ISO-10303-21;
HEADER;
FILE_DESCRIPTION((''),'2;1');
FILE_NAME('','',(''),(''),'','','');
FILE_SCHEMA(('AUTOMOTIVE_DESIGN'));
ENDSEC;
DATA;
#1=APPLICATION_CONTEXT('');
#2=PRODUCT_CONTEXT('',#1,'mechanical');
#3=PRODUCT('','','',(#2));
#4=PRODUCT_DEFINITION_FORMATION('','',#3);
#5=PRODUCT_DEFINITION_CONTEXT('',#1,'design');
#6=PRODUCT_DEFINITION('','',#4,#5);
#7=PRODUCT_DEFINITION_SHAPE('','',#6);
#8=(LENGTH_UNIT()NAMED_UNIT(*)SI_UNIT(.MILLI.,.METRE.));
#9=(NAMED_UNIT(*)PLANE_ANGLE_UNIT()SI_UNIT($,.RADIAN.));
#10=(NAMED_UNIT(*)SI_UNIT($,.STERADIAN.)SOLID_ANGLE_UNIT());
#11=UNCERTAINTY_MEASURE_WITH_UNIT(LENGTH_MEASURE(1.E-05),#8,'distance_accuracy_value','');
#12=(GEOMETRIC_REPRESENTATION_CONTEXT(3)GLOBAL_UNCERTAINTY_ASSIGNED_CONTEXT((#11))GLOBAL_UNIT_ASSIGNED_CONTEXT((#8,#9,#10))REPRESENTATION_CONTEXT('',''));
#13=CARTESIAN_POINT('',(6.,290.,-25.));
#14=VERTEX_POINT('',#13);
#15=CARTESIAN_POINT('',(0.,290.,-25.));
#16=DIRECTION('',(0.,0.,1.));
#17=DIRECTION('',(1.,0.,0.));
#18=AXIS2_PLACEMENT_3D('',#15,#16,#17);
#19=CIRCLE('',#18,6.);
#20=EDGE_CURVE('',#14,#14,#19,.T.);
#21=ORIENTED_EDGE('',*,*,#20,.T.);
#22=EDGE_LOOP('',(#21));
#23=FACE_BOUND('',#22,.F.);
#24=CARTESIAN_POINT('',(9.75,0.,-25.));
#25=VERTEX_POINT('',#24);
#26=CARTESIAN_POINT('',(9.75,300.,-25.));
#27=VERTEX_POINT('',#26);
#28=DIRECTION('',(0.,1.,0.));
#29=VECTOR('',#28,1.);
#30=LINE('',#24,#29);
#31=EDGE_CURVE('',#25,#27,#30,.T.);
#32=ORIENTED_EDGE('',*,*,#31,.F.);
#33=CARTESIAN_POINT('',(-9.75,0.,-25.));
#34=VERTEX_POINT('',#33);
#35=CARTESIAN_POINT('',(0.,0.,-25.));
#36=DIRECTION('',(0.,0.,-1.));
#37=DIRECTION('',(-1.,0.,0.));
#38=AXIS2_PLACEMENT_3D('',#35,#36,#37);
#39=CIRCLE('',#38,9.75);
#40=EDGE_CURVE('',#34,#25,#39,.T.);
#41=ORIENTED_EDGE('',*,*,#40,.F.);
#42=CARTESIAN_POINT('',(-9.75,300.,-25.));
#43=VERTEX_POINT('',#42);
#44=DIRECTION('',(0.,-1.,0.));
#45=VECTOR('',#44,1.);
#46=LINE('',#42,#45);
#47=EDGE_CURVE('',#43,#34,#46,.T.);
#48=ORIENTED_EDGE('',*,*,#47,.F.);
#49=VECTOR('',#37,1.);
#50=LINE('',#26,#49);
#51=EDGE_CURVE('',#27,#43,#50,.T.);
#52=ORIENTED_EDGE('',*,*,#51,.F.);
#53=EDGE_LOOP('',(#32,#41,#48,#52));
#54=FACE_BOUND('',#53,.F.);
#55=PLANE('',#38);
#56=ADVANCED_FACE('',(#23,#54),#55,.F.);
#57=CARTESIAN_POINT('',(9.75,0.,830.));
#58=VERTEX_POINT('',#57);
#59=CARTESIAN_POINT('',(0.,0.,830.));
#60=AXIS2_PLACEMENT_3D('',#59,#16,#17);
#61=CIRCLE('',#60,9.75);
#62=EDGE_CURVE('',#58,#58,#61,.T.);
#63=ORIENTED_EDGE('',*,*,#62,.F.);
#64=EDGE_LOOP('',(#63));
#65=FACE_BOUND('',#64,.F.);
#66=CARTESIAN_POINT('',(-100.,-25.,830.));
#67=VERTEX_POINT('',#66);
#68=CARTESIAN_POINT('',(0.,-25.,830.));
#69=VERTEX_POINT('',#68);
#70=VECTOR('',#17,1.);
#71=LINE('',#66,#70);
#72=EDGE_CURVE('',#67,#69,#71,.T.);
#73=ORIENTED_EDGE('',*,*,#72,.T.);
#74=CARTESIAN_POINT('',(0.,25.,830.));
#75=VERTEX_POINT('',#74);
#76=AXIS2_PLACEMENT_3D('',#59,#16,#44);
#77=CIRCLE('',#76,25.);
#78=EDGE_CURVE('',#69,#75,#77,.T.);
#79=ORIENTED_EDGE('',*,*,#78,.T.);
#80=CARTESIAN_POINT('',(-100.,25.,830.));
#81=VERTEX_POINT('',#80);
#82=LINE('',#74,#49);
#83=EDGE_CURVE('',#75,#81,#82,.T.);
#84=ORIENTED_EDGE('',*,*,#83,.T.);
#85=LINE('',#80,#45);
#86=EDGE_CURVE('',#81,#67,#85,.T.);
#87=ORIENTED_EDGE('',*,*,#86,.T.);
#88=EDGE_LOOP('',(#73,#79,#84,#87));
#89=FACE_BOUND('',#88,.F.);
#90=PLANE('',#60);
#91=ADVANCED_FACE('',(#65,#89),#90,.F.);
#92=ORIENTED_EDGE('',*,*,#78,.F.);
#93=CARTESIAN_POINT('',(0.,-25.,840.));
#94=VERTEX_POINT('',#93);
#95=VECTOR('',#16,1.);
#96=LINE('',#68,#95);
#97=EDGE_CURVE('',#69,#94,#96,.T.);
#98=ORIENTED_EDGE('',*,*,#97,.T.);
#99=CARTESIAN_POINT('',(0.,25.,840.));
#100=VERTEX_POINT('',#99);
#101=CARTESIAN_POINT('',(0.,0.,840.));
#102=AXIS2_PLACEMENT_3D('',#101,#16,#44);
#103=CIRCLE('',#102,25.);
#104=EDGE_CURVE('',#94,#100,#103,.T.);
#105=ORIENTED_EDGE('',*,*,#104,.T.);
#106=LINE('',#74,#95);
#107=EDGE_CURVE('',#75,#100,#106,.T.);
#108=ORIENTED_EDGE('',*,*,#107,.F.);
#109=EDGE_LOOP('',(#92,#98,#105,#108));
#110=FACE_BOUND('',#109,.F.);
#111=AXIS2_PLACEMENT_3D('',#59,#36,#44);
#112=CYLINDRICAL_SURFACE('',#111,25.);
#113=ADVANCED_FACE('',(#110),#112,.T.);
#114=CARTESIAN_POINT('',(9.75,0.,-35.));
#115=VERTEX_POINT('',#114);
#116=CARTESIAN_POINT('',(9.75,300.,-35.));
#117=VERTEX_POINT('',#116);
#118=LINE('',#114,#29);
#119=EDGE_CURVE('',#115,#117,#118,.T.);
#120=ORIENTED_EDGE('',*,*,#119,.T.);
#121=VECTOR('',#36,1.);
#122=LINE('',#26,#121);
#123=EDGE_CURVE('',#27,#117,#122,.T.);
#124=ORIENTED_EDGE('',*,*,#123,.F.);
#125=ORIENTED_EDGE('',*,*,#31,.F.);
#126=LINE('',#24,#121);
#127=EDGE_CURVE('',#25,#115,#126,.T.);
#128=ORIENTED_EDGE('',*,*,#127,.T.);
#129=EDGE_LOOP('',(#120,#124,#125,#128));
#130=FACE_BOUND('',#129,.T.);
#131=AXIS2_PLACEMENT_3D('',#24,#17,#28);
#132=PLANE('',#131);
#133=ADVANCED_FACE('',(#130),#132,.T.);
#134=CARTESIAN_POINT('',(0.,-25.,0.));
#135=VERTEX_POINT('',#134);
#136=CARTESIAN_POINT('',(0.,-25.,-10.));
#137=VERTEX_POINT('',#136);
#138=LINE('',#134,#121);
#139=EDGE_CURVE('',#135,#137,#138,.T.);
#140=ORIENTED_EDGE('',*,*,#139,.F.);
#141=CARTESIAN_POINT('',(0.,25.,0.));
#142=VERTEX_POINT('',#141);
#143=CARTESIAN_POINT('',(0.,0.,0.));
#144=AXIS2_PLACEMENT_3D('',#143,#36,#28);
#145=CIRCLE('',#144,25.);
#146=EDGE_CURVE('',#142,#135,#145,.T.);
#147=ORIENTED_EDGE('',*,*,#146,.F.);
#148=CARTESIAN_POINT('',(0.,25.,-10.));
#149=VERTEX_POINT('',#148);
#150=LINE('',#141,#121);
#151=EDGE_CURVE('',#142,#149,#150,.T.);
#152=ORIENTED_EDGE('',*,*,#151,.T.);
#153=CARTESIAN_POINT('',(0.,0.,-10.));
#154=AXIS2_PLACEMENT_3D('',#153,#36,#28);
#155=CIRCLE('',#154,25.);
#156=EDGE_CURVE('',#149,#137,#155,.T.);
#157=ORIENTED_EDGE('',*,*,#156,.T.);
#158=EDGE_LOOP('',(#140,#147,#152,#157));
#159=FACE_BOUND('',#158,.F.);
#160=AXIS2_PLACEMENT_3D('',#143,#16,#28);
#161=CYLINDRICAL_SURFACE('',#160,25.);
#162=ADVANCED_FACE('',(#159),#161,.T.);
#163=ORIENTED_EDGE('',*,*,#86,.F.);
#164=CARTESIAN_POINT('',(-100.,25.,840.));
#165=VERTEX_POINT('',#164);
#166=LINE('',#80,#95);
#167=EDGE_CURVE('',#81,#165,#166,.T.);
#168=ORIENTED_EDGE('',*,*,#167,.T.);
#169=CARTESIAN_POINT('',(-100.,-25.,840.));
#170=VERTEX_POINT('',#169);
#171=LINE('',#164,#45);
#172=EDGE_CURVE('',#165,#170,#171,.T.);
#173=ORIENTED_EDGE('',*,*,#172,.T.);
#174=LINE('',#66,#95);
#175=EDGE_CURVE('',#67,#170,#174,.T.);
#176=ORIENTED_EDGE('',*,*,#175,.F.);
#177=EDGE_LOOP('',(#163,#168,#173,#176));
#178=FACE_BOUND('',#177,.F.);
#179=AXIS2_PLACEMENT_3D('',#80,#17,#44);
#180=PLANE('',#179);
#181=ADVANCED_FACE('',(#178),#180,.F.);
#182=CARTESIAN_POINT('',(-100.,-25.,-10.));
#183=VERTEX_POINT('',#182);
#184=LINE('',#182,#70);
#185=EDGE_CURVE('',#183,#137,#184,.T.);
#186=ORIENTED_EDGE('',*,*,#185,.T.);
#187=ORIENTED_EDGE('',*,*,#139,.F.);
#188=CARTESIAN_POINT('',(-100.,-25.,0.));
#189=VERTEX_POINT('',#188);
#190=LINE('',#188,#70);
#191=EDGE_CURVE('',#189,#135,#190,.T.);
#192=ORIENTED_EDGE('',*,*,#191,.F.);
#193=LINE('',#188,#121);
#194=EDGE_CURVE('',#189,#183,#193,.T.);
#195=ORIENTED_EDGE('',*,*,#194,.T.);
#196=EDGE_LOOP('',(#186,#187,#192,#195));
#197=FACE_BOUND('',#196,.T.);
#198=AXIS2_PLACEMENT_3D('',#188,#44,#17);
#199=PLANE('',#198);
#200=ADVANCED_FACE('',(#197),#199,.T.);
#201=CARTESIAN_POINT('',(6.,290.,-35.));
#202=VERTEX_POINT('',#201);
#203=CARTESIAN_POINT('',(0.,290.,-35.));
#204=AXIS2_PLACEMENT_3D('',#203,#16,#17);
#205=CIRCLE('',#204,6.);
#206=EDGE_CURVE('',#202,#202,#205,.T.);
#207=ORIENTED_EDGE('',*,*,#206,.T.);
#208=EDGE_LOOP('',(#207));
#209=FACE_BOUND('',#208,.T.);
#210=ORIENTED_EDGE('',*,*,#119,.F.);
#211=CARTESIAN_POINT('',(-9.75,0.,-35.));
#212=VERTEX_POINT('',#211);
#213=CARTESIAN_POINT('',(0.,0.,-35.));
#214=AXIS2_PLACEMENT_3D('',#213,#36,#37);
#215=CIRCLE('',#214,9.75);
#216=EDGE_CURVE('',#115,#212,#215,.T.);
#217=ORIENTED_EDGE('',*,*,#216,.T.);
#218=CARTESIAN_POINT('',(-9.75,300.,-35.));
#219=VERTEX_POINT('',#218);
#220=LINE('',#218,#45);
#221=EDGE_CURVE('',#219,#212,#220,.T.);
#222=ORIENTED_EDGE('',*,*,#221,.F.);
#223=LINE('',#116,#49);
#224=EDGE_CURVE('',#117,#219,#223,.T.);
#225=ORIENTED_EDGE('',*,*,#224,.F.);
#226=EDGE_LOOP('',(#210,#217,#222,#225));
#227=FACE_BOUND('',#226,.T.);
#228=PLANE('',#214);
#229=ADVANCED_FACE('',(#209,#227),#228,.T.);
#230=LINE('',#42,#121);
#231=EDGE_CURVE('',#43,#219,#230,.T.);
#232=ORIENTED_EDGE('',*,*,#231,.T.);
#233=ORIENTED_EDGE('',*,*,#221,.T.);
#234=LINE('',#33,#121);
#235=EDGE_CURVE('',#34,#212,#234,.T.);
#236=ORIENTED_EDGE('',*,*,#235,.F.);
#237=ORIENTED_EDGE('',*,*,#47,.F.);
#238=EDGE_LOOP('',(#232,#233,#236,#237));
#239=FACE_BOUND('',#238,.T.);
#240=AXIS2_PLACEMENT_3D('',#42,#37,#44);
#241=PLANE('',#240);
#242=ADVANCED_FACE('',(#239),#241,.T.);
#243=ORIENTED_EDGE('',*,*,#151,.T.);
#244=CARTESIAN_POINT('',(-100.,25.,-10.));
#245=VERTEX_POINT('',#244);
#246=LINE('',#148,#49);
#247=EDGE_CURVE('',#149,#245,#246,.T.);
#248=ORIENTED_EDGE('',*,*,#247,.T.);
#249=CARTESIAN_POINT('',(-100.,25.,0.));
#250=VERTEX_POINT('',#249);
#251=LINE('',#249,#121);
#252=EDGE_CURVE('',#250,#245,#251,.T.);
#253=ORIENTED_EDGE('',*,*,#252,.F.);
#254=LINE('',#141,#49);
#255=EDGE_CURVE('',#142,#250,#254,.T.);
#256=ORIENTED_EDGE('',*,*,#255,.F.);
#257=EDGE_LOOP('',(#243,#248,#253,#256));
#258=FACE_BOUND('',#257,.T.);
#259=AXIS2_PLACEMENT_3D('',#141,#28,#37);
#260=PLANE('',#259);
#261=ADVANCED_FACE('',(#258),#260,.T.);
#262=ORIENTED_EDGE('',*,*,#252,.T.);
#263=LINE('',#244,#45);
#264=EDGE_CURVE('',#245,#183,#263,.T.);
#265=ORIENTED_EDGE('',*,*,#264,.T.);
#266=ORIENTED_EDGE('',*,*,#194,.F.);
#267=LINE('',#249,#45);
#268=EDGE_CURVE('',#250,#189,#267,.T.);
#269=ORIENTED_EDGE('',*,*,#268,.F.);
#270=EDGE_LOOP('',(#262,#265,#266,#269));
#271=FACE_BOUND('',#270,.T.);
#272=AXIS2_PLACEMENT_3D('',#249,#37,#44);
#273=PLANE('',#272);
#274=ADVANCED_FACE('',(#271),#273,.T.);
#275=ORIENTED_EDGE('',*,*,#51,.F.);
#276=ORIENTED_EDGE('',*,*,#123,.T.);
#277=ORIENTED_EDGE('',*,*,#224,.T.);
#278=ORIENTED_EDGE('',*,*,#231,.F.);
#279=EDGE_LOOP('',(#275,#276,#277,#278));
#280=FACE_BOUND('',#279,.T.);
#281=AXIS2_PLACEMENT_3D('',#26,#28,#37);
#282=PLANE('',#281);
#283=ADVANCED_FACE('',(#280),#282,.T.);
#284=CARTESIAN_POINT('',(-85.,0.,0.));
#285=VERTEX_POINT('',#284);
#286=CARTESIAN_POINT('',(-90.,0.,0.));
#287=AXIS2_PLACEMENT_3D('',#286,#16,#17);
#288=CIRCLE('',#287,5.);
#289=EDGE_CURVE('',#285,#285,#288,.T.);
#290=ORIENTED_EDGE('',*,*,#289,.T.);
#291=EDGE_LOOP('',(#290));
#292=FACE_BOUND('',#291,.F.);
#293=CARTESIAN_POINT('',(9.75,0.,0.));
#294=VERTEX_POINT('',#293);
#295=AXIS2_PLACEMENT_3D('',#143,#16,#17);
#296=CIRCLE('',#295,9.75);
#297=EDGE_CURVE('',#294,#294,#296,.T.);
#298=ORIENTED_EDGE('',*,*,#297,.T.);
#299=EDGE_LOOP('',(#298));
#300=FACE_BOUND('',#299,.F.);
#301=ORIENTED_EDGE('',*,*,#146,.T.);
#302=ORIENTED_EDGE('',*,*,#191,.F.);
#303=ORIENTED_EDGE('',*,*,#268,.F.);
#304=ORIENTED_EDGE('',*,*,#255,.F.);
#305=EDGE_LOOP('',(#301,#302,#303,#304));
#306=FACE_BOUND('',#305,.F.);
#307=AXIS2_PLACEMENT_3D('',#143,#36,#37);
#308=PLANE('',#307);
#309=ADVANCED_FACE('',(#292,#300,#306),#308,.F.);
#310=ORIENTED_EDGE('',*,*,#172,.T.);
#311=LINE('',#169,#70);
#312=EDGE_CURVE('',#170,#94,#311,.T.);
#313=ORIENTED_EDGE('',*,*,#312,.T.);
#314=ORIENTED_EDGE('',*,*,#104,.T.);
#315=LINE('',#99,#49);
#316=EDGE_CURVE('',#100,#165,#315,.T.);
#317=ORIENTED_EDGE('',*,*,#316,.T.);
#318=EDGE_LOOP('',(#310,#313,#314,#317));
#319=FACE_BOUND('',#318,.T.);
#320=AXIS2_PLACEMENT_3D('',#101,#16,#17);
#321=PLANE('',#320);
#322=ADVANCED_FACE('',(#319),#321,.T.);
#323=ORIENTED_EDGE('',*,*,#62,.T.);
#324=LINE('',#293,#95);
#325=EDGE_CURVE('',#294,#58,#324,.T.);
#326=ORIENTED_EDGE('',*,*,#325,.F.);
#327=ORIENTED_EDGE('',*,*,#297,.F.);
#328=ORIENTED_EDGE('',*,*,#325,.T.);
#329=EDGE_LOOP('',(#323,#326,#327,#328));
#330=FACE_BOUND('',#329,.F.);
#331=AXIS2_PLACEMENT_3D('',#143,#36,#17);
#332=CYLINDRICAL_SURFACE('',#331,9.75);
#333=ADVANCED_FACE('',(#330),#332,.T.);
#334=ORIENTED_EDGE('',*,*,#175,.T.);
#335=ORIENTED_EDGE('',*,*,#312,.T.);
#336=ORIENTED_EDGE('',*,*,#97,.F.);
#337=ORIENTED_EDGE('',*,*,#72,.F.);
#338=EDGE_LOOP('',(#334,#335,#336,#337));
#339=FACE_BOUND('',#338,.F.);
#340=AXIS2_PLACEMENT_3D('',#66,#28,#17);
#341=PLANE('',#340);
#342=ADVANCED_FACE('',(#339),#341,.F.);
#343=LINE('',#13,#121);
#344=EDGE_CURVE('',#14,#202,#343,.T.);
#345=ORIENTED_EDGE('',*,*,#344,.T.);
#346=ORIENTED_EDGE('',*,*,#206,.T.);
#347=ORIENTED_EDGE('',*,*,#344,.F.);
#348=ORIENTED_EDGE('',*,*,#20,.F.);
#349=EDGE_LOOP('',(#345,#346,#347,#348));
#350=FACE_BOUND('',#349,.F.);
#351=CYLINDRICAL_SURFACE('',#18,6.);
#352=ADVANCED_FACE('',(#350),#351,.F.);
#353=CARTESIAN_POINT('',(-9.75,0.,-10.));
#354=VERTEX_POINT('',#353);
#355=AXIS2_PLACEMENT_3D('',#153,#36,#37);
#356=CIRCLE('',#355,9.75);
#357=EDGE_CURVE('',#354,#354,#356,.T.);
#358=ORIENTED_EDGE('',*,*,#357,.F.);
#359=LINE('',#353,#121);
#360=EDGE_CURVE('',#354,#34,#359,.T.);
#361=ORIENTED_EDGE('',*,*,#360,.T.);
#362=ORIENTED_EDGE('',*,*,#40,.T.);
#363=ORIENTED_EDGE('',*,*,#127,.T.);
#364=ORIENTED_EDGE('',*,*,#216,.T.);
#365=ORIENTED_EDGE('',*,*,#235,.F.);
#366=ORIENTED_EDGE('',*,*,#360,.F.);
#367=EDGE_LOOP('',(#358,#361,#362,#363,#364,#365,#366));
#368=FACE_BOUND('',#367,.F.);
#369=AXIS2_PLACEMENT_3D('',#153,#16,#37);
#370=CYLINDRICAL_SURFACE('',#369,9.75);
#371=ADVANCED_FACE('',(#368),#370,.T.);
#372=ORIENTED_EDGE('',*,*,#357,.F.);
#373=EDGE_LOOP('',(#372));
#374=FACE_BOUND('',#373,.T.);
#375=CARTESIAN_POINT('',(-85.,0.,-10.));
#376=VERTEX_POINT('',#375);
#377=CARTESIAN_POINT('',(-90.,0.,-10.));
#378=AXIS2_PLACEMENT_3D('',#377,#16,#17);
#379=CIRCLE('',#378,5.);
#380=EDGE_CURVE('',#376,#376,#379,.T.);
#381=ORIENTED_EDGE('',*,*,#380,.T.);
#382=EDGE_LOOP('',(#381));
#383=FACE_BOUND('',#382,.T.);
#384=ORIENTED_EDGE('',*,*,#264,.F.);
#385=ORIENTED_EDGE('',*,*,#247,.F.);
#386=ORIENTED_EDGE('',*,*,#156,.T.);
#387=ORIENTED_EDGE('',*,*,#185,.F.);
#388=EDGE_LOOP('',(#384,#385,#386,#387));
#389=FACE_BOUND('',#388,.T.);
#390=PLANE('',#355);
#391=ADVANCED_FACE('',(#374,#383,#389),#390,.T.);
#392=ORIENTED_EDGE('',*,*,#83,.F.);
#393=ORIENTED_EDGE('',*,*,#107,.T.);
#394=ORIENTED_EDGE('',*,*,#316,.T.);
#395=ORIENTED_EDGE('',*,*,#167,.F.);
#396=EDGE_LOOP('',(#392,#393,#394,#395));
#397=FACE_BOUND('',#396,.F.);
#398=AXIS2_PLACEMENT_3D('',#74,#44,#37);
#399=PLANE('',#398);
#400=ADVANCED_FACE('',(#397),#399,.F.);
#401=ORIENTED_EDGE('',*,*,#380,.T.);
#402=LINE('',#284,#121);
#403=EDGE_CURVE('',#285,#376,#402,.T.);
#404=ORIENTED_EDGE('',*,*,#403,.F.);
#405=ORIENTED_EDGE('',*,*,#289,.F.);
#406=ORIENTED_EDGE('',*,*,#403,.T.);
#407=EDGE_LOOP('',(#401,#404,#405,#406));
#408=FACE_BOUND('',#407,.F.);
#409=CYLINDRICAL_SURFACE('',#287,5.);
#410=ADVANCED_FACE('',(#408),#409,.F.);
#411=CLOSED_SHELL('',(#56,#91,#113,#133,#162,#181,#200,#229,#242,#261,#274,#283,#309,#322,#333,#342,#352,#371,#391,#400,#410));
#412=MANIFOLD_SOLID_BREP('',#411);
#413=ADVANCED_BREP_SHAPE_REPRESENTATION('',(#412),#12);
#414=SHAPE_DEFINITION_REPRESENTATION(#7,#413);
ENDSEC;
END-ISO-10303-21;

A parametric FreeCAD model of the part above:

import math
import FreeCAD as App
import Part
import Sketcher

doc = App.newDocument("Part")
params = doc.addObject("Spreadsheet::Sheet", "Params")
for row, (alias, value) in enumerate([
    ("sketch1_diameter", "19.5 mm"),
    ("pad1_length", "830 mm"),
    ("sketch2_radius", "25 mm"),
    ("sketch2_width", "100 mm"),
    ("pad2_length", "10 mm"),
    ("sketch3_radius", "25 mm"),
    ("sketch3_width", "100 mm"),
    ("pad3_length", "10 mm"),
    ("sketch4_diameter", "10 mm"),
    ("pocket1_length", "10 mm"),
    ("sketch5_diameter", "19.5 mm"),
    ("pad4_length", "15 mm"),
    ("sketch6_height", "300 mm"),
    ("sketch6_radius", "9.75 mm"),
    ("pad5_length", "10 mm"),
    ("sketch7_diameter", "12 mm"),
    ("pocket2_length", "10 mm"),
], start=1):
    params.set(f"A{row}", alias)
    params.set(f"B{row}", "=" + value)
    params.setAlias(f"B{row}", alias)

body = doc.addObject("PartDesign::Body", "Body")

# Sketch on XY plane
sketch1 = body.newObject("Sketcher::SketchObject", "Sketch")
sketch1.AttachmentSupport = (doc.getObject("XY_Plane"), [""])
sketch1.MapMode = "FlatFace"
sketch1.addGeometry(Part.Circle(App.Vector(0, 0, 0), App.Vector(0, 0, 1), 10), False)
sketch1.addConstraint([
    Sketcher.Constraint("Coincident", 0, 3, -1, 1),
    Sketcher.Constraint("Diameter", 0, 19.5),
])
sketch1.setExpression("Constraints[1]", "Params.sketch1_diameter")
pad1 = body.newObject("PartDesign::Pad", "Pad")
pad1.Profile = sketch1
pad1.setExpression("Length", "Params.pad1_length")

# Sketch on XY plane
sketch2 = body.newObject("Sketcher::SketchObject", "Sketch001")
sketch2.AttachmentSupport = (doc.getObject("XY_Plane"), [""])
sketch2.MapMode = "FlatFace"
sketch2.AttachmentOffset = App.Placement(App.Vector(0, 0, 830), App.Rotation())
sketch2.addGeometry([
    Part.LineSegment(App.Vector(-100, -25, 0), App.Vector(0, -25, 0)),
    Part.ArcOfCircle(Part.Circle(App.Vector(0, 0, 0), App.Vector(0, 0, 1), 25), math.radians(-90), math.radians(90)),
    Part.LineSegment(App.Vector(0, 25, 0), App.Vector(-100, 25, 0)),
    Part.LineSegment(App.Vector(-100, 25, 0), App.Vector(-100, -25, 0)),
], False)
sketch2.addConstraint([
    Sketcher.Constraint("Tangent", 0, 2, 1, 1),
    Sketcher.Constraint("Tangent", 1, 2, 2, 1),
    Sketcher.Constraint("Coincident", 2, 2, 3, 1),
    Sketcher.Constraint("Coincident", 3, 2, 0, 1),
    Sketcher.Constraint("Horizontal", 0),
    Sketcher.Constraint("Horizontal", 2),
    Sketcher.Constraint("Vertical", 3),
    Sketcher.Constraint("Coincident", 1, 3, -1, 1),
    Sketcher.Constraint("Radius", 1, 25.0),
    Sketcher.Constraint("DistanceX", 0, 1, 0, 2, 100.0),
])
sketch2.setExpression("Constraints[8]", "Params.sketch2_radius")
sketch2.setExpression("Constraints[9]", "Params.sketch2_width")
pad2 = body.newObject("PartDesign::Pad", "Pad001")
pad2.Profile = sketch2
pad2.setExpression("Length", "Params.pad2_length")

# Sketch on XY plane
sketch3 = body.newObject("Sketcher::SketchObject", "Sketch002")
sketch3.AttachmentSupport = (doc.getObject("XY_Plane"), [""])
sketch3.MapMode = "FlatFace"
sketch3.addGeometry([
    Part.LineSegment(App.Vector(-100, 25, 0), App.Vector(0, 25, 0)),
    Part.ArcOfCircle(Part.Circle(App.Vector(0, 0, 0), App.Vector(0, 0, 1), 25), math.radians(-90), math.radians(90)),
    Part.LineSegment(App.Vector(0, -25, 0), App.Vector(-100, -25, 0)),
    Part.LineSegment(App.Vector(-100, -25, 0), App.Vector(-100, 25, 0)),
], False)
sketch3.addConstraint([
    Sketcher.Constraint("Tangent", 0, 2, 1, 2),
    Sketcher.Constraint("Tangent", 1, 1, 2, 1),
    Sketcher.Constraint("Coincident", 2, 2, 3, 1),
    Sketcher.Constraint("Coincident", 3, 2, 0, 1),
    Sketcher.Constraint("Horizontal", 0),
    Sketcher.Constraint("Horizontal", 2),
    Sketcher.Constraint("Vertical", 3),
    Sketcher.Constraint("Coincident", 1, 3, -1, 1),
    Sketcher.Constraint("Radius", 1, 25.0),
    Sketcher.Constraint("DistanceX", 0, 1, 0, 2, 100.0),
])
sketch3.setExpression("Constraints[8]", "Params.sketch3_radius")
sketch3.setExpression("Constraints[9]", "Params.sketch3_width")
pad3 = body.newObject("PartDesign::Pad", "Pad002")
pad3.Profile = sketch3
pad3.setExpression("Length", "Params.pad3_length")
pad3.Reversed = True

# Sketch on XY plane
sketch4 = body.newObject("Sketcher::SketchObject", "Sketch003")
sketch4.AttachmentSupport = (doc.getObject("XY_Plane"), [""])
sketch4.MapMode = "FlatFace"
sketch4.addGeometry(Part.Circle(App.Vector(-90, 0, 0), App.Vector(0, 0, 1), 5), False)
sketch4.addConstraint([
    Sketcher.Constraint("PointOnObject", 0, 3, -1),
    Sketcher.Constraint("Diameter", 0, 10.0),
    Sketcher.Constraint("DistanceX", 0, 3, -1, 1, 90.0),
])
sketch4.setExpression("Constraints[1]", "Params.sketch4_diameter")
pocket1 = body.newObject("PartDesign::Pocket", "Pocket")
pocket1.Profile = sketch4
pocket1.setExpression("Length", "Params.pocket1_length")

# Sketch on XY plane
sketch5 = body.newObject("Sketcher::SketchObject", "Sketch004")
sketch5.AttachmentSupport = (doc.getObject("XY_Plane"), [""])
sketch5.MapMode = "FlatFace"
sketch5.AttachmentOffset = App.Placement(App.Vector(0, 0, -10), App.Rotation())
sketch5.addGeometry(Part.Circle(App.Vector(0, 0, 0), App.Vector(0, 0, 1), 10), False)
sketch5.addConstraint([
    Sketcher.Constraint("Coincident", 0, 3, -1, 1),
    Sketcher.Constraint("Diameter", 0, 19.5),
])
sketch5.setExpression("Constraints[1]", "Params.sketch5_diameter")
pad4 = body.newObject("PartDesign::Pad", "Pad003")
pad4.Profile = sketch5
pad4.setExpression("Length", "Params.pad4_length")
pad4.Reversed = True

# Sketch on XY plane
sketch6 = body.newObject("Sketcher::SketchObject", "Sketch005")
sketch6.AttachmentSupport = (doc.getObject("XY_Plane"), [""])
sketch6.MapMode = "FlatFace"
sketch6.AttachmentOffset = App.Placement(App.Vector(0, 0, -25), App.Rotation())
sketch6.addGeometry([
    Part.ArcOfCircle(Part.Circle(App.Vector(0, 0, 0), App.Vector(0, 0, 1), 10), math.radians(180), math.radians(360)),
    Part.LineSegment(App.Vector(-10, 0, 0), App.Vector(-10, 300, 0)),
    Part.LineSegment(App.Vector(-10, 300, 0), App.Vector(10, 300, 0)),
    Part.LineSegment(App.Vector(10, 300, 0), App.Vector(10, 0, 0)),
], False)
sketch6.addConstraint([
    Sketcher.Constraint("Tangent", 0, 1, 1, 1),
    Sketcher.Constraint("Coincident", 1, 2, 2, 1),
    Sketcher.Constraint("Coincident", 2, 2, 3, 1),
    Sketcher.Constraint("Tangent", 3, 2, 0, 2),
    Sketcher.Constraint("Vertical", 1),
    Sketcher.Constraint("Horizontal", 2),
    Sketcher.Constraint("Vertical", 3),
    Sketcher.Constraint("Coincident", 0, 3, -1, 1),
    Sketcher.Constraint("DistanceY", 1, 1, 1, 2, 300.0),
    Sketcher.Constraint("Radius", 0, 9.75),
])
sketch6.setExpression("Constraints[8]", "Params.sketch6_height")
sketch6.setExpression("Constraints[9]", "Params.sketch6_radius")
pad5 = body.newObject("PartDesign::Pad", "Pad004")
pad5.Profile = sketch6
pad5.setExpression("Length", "Params.pad5_length")
pad5.Reversed = True

# Sketch on XY plane
sketch7 = body.newObject("Sketcher::SketchObject", "Sketch006")
sketch7.AttachmentSupport = (doc.getObject("XY_Plane"), [""])
sketch7.MapMode = "FlatFace"
sketch7.AttachmentOffset = App.Placement(App.Vector(0, 0, -25), App.Rotation())
sketch7.addGeometry(Part.Circle(App.Vector(0, 290, 0), App.Vector(0, 0, 1), 6), False)
sketch7.addConstraint([
    Sketcher.Constraint("PointOnObject", 0, 3, -2),
    Sketcher.Constraint("Diameter", 0, 12.0),
    Sketcher.Constraint("DistanceY", -1, 1, 0, 3, 290.0),
])
sketch7.setExpression("Constraints[1]", "Params.sketch7_diameter")
pocket2 = body.newObject("PartDesign::Pocket", "Pocket001")
pocket2.Profile = sketch7
pocket2.setExpression("Length", "Params.pocket2_length")

doc.recompute()
